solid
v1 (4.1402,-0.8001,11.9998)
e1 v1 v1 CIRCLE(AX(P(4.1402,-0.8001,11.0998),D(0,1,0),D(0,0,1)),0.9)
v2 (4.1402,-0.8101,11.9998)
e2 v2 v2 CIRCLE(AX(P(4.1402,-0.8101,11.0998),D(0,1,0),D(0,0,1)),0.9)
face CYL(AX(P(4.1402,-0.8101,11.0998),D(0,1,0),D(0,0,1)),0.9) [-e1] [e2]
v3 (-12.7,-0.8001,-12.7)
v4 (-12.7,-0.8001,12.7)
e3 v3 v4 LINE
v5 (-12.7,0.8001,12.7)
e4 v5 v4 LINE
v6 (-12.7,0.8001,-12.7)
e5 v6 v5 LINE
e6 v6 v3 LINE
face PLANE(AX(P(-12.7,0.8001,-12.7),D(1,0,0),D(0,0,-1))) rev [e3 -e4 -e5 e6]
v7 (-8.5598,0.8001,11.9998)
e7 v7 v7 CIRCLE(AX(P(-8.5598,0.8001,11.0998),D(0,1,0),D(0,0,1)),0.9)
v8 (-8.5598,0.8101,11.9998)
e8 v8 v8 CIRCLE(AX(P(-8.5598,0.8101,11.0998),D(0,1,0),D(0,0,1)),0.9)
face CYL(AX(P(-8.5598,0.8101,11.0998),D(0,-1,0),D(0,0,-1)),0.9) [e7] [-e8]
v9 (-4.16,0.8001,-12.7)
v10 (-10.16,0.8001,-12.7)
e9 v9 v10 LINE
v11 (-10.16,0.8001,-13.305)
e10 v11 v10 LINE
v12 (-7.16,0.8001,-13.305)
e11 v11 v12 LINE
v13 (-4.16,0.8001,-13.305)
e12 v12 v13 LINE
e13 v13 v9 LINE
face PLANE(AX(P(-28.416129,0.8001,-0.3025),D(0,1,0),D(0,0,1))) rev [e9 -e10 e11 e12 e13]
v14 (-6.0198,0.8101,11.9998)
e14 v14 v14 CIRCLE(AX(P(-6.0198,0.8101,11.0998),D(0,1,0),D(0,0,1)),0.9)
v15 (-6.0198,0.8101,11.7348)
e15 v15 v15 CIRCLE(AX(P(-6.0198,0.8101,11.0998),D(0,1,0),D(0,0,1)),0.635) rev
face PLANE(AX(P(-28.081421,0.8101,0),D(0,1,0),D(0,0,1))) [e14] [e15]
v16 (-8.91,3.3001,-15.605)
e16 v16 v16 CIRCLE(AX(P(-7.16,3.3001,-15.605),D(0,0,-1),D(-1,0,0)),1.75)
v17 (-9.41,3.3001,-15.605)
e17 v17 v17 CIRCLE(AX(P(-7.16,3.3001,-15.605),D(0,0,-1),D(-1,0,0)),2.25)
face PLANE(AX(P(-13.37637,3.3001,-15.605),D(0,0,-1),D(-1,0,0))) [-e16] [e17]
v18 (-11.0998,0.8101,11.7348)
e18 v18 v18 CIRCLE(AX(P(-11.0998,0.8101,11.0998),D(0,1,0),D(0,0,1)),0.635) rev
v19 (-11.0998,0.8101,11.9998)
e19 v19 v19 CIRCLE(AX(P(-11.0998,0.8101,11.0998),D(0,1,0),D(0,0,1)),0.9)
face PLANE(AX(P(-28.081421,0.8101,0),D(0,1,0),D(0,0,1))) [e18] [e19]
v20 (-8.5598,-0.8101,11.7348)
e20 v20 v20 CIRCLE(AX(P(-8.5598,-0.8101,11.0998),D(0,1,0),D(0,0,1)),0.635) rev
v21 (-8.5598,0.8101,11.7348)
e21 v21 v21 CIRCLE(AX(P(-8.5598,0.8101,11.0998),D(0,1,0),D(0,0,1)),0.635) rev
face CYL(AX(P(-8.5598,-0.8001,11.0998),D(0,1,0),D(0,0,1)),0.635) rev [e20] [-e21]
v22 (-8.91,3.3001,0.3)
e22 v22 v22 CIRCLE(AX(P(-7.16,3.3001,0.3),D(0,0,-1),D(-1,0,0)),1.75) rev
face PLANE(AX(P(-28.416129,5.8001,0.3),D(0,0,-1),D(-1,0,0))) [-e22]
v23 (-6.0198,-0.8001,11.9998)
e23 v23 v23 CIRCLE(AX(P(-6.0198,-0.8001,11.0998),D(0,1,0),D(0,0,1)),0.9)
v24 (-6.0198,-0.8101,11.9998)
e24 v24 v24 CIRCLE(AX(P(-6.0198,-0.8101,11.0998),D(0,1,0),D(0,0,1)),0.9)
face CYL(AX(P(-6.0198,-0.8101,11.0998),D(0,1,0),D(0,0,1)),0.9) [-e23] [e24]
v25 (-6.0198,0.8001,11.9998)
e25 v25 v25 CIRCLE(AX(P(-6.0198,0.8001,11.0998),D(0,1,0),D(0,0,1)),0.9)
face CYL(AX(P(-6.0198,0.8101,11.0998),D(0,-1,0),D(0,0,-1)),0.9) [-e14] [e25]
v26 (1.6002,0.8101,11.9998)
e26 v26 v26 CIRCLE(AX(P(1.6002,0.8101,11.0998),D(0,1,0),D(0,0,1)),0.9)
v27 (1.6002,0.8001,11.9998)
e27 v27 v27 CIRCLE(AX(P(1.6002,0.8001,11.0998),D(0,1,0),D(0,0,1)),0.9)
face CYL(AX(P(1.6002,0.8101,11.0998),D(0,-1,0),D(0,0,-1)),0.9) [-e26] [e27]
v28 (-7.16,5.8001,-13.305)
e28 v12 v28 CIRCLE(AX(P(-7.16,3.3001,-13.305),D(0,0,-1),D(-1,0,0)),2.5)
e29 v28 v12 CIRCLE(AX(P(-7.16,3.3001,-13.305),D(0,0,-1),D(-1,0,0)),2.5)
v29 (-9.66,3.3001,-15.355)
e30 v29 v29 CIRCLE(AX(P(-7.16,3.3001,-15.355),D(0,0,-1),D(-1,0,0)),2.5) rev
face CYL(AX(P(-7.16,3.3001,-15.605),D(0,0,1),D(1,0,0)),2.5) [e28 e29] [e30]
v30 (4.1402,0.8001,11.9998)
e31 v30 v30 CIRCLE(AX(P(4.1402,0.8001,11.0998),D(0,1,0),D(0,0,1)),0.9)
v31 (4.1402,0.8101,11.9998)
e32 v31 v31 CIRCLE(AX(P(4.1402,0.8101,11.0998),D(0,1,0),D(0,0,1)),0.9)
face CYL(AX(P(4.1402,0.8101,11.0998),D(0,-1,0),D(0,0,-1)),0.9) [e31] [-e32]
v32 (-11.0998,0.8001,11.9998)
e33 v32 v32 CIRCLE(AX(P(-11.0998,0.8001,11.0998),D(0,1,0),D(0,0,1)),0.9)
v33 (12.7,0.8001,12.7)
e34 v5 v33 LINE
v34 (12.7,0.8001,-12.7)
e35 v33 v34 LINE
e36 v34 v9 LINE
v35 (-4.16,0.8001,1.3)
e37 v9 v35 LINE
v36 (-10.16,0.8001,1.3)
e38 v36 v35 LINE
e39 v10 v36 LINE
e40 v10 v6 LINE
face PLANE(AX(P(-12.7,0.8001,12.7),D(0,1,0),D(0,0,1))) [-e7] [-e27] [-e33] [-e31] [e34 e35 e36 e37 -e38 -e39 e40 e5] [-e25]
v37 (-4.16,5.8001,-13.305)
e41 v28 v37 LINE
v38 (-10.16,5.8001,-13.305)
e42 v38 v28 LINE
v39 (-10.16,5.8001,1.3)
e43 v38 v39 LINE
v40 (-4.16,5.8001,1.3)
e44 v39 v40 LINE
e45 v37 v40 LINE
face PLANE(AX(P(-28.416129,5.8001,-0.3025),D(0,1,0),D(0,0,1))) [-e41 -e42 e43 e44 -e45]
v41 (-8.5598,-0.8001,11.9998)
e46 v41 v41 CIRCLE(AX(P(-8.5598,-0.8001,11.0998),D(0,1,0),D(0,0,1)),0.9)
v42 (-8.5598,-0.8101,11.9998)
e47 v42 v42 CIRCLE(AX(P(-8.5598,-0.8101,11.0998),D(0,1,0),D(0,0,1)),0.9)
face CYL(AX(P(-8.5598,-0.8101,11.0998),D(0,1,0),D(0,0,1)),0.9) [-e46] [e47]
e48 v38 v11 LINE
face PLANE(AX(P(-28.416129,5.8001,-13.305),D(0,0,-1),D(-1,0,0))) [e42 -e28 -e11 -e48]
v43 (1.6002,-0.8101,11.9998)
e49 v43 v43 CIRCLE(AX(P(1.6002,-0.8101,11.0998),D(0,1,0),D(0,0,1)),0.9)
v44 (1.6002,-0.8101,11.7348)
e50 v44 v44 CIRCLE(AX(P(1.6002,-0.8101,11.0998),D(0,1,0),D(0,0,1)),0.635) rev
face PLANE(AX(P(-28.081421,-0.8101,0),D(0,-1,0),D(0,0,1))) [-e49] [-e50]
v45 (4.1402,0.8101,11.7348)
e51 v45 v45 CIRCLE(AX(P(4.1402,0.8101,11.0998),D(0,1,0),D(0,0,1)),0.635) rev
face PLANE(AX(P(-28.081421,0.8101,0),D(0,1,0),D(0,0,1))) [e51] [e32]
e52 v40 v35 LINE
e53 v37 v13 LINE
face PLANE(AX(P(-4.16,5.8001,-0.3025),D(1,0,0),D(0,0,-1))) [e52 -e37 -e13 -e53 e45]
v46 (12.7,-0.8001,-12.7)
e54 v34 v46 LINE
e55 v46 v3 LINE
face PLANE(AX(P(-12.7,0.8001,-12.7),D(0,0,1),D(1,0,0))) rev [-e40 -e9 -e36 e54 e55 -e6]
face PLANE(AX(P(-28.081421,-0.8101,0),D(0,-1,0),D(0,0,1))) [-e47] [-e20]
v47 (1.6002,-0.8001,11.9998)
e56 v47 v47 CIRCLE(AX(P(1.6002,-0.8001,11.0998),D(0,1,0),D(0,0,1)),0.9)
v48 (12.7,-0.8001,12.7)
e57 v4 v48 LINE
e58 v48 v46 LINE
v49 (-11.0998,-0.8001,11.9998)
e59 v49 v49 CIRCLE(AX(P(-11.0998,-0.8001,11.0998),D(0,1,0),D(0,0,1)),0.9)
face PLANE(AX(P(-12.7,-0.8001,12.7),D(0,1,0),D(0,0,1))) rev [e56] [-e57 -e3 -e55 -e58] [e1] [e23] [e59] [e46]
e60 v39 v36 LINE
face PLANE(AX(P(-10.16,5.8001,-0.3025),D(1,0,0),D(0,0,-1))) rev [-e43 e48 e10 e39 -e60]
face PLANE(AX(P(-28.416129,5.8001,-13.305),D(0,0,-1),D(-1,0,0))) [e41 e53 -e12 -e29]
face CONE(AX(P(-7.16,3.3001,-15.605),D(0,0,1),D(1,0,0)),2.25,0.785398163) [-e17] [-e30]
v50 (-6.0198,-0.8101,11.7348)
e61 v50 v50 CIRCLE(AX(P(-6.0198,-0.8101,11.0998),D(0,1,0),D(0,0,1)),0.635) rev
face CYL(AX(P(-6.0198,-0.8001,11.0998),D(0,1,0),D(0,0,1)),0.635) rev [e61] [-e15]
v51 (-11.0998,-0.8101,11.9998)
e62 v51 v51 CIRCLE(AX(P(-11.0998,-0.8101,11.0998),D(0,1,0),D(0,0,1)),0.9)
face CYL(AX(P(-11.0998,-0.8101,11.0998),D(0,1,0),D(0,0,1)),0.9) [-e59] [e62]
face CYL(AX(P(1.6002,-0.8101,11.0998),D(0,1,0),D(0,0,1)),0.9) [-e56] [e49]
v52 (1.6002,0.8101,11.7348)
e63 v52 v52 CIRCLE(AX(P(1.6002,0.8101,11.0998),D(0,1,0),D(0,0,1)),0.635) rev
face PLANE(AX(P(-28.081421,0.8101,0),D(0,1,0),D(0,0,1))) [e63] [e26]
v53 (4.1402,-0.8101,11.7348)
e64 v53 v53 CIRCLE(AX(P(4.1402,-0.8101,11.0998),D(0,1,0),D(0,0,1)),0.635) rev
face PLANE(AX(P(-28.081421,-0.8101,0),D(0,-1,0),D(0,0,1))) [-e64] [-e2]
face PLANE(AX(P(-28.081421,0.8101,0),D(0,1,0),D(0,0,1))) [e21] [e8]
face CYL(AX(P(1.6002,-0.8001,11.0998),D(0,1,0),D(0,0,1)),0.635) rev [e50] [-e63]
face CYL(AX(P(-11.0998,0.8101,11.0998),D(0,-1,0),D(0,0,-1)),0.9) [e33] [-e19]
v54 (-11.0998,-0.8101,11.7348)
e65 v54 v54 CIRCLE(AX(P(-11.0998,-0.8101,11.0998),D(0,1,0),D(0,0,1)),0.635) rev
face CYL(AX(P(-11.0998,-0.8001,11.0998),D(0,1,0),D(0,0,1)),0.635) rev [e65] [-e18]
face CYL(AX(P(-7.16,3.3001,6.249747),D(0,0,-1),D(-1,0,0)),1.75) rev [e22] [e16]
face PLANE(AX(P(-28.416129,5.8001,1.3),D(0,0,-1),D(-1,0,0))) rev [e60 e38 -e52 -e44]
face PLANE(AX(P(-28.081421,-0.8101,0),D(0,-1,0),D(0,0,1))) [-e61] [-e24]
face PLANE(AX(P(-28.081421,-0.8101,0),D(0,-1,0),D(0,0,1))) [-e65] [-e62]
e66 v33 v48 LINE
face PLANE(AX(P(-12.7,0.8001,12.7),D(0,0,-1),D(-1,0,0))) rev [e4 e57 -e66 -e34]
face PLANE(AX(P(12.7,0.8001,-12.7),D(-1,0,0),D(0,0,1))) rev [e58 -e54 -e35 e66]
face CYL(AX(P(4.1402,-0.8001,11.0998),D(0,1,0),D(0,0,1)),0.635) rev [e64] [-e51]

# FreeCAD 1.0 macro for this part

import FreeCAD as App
import Part
import Sketcher
from FreeCAD import Vector


def edges_at(feature, points):
    """Names of the edges that pass closest to the given points."""
    edges = feature.Shape.Edges
    near = lambda p: min(range(len(edges)), key=lambda i: edges[i].distToShape(Part.Vertex(*p))[0])
    return sorted({f"Edge{near(p) + 1}" for p in points})

doc = App.newDocument("Part")
params = doc.addObject("Spreadsheet::Sheet", "Params")
for row, (alias, value) in enumerate([
    ("sketch1_width", "25.4 mm"),
    ("pad1_length", "1.6002 mm"),
    ("sketch2_diameter", "1.27 mm"),
    ("pocket1_length", "1.6002 mm"),
    ("sketch3_width", "6 mm"),
    ("pad2_length", "5 mm"),
    ("sketch4_diameter", "5 mm"),
    ("pad3_length", "2.3 mm"),
    ("sketch5_diameter", "3.5 mm"),
    ("pocket2_length", "15.905 mm"),
    ("chamfer_size", "0.25 mm"),
    ("sketch6_diameter", "1.8 mm"),
    ("sketch6_diameter2", "1.27 mm"),
    ("pad4_length", "0.01 mm"),
], start=1):
    params.set(f"A{row}", alias)
    params.set(f"B{row}", "=" + value)
    params.setAlias(f"B{row}", alias)

body = doc.addObject("PartDesign::Body", "Body")

sketch1 = body.newObject("Sketcher::SketchObject", "Sketch")
sketch1.AttachmentSupport = (doc.getObject("XZ_Plane"), [""])
sketch1.MapMode = "FlatFace"
sketch1.addGeometry([
    Part.LineSegment(Vector(-13, -13, 0), Vector(-13, 13, 0)),
    Part.LineSegment(Vector(-13, 13, 0), Vector(13, 13, 0)),
    Part.LineSegment(Vector(13, 13, 0), Vector(13, -13, 0)),
    Part.LineSegment(Vector(13, -13, 0), Vector(-13, -13, 0)),
], False)
sketch1.addConstraint([
    Sketcher.Constraint("Coincident", 0, 2, 1, 1),
    Sketcher.Constraint("Coincident", 1, 2, 2, 1),
    Sketcher.Constraint("Coincident", 2, 2, 3, 1),
    Sketcher.Constraint("Coincident", 3, 2, 0, 1),
    Sketcher.Constraint("Vertical", 0),
    Sketcher.Constraint("Horizontal", 1),
    Sketcher.Constraint("Vertical", 2),
    Sketcher.Constraint("Horizontal", 3),
    Sketcher.Constraint("Symmetric", 0, 2, 2, 2, -1, 1),
    Sketcher.Constraint("Equal", 3, 0),
    Sketcher.Constraint("DistanceX", 1, 1, 1, 2, 25.4),
])
sketch1.setExpression("Constraints[10]", "Params.sketch1_width")
pad1 = body.newObject("PartDesign::Pad", "Pad")
pad1.Profile = sketch1
pad1.setExpression("Length", "Params.pad1_length")
pad1.Midplane = True

sketch2 = body.newObject("Sketcher::SketchObject", "Sketch001")
sketch2.AttachmentSupport = (doc.getObject("XZ_Plane"), [""])
sketch2.MapMode = "FlatFace"
sketch2.AttachmentOffset = App.Placement(Vector(0, 0, -0.8001), App.Rotation())
sketch2.addGeometry([
    Part.Circle(Vector(-11.1, 11.1, 0), Vector(0, 0, 1), 0.6),
    Part.Circle(Vector(-8.6, 11.1, 0), Vector(0, 0, 1), 0.6),
    Part.Circle(Vector(-6, 11.1, 0), Vector(0, 0, 1), 0.6),
    Part.Circle(Vector(1.6, 11.1, 0), Vector(0, 0, 1), 0.6),
    Part.Circle(Vector(4.1, 11.1, 0), Vector(0, 0, 1), 0.6),
], False)
sketch2.addConstraint([
    Sketcher.Constraint("Equal", 0, 1),
    Sketcher.Constraint("Equal", 1, 2),
    Sketcher.Constraint("Equal", 2, 3),
    Sketcher.Constraint("Equal", 3, 4),
    Sketcher.Constraint("Horizontal", 0, 3, 1, 3),
    Sketcher.Constraint("Horizontal", 1, 3, 2, 3),
    Sketcher.Constraint("Horizontal", 2, 3, 3, 3),
    Sketcher.Constraint("Horizontal", 3, 3, 4, 3),
    Sketcher.Constraint("Diameter", 0, 1.27),
    Sketcher.Constraint("DistanceX", 0, 3, 3, 3, 12.7),
    Sketcher.Constraint("DistanceX", 1, 3, 4, 3, 12.7),
    Sketcher.Constraint("DistanceX", 0, 3, 1, 3, 2.54),
    Sketcher.Constraint("DistanceX", 1, 3, 2, 3, 2.54),
    Sketcher.Constraint("DistanceX", 0, 3, -1, 1, 11.0998),
    Sketcher.Constraint("DistanceY", -1, 1, 0, 3, 11.0998),
])
sketch2.setExpression("Constraints[8]", "Params.sketch2_diameter")
pocket1 = body.newObject("PartDesign::Pocket", "Pocket")
pocket1.Profile = sketch2
pocket1.setExpression("Length", "Params.pocket1_length")
pocket1.Reversed = True

sketch3 = body.newObject("Sketcher::SketchObject", "Sketch002")
sketch3.AttachmentSupport = (doc.getObject("XZ_Plane"), [""])
sketch3.MapMode = "FlatFace"
sketch3.AttachmentOffset = App.Placement(Vector(0, 0, -0.8001), App.Rotation())
sketch3.addGeometry([
    Part.LineSegment(Vector(-10, -13, 0), Vector(-10, 1, 0)),
    Part.LineSegment(Vector(-10, 1, 0), Vector(-4, 1, 0)),
    Part.LineSegment(Vector(-4, 1, 0), Vector(-4, -13, 0)),
    Part.LineSegment(Vector(-4, -13, 0), Vector(-10, -13, 0)),
], False)
sketch3.addConstraint([
    Sketcher.Constraint("Coincident", 0, 2, 1, 1),
    Sketcher.Constraint("Coincident", 1, 2, 2, 1),
    Sketcher.Constraint("Coincident", 2, 2, 3, 1),
    Sketcher.Constraint("Coincident", 3, 2, 0, 1),
    Sketcher.Constraint("Vertical", 0),
    Sketcher.Constraint("Horizontal", 1),
    Sketcher.Constraint("Vertical", 2),
    Sketcher.Constraint("Horizontal", 3),
    Sketcher.Constraint("DistanceX", 1, 1, 1, 2, 6.0),
    Sketcher.Constraint("DistanceY", -1, 1, 0, 2, 1.3),
    Sketcher.Constraint("DistanceY", 0, 1, 0, 2, 14.605),
    Sketcher.Constraint("DistanceX", 0, 2, -1, 1, 10.16),
])
sketch3.setExpression("Constraints[8]", "Params.sketch3_width")
pad2 = body.newObject("PartDesign::Pad", "Pad001")
pad2.Profile = sketch3
pad2.setExpression("Length", "Params.pad2_length")
pad2.Reversed = True

sketch4 = body.newObject("Sketcher::SketchObject", "Sketch003")
sketch4.AttachmentSupport = (doc.getObject("XY_Plane"), [""])
sketch4.MapMode = "FlatFace"
sketch4.AttachmentOffset = App.Placement(Vector(0, 0, -13.305), App.Rotation())
sketch4.addGeometry(Part.Circle(Vector(-7.2, 3.3, 0), Vector(0, 0, 1), 2.5), False)
sketch4.addConstraint([
    Sketcher.Constraint("Diameter", 0, 5.0),
    Sketcher.Constraint("DistanceX", 0, 3, -1, 1, 7.16),
    Sketcher.Constraint("DistanceY", -1, 1, 0, 3, 3.3001),
])
sketch4.setExpression("Constraints[0]", "Params.sketch4_diameter")
pad3 = body.newObject("PartDesign::Pad", "Pad002")
pad3.Profile = sketch4
pad3.setExpression("Length", "Params.pad3_length")
pad3.Reversed = True

sketch5 = body.newObject("Sketcher::SketchObject", "Sketch004")
sketch5.AttachmentSupport = (doc.getObject("XY_Plane"), [""])
sketch5.MapMode = "FlatFace"
sketch5.AttachmentOffset = App.Placement(Vector(0, 0, -15.605), App.Rotation())
sketch5.addGeometry(Part.Circle(Vector(-7.2, 3.3, 0), Vector(0, 0, 1), 1.8), False)
sketch5.addConstraint([
    Sketcher.Constraint("Diameter", 0, 3.5),
    Sketcher.Constraint("DistanceX", 0, 3, -1, 1, 7.16),
    Sketcher.Constraint("DistanceY", -1, 1, 0, 3, 3.3001),
])
sketch5.setExpression("Constraints[0]", "Params.sketch5_diameter")
pocket2 = body.newObject("PartDesign::Pocket", "Pocket001")
pocket2.Profile = sketch5
pocket2.setExpression("Length", "Params.pocket2_length")
pocket2.Reversed = True
doc.recompute()

chamfer = body.newObject("PartDesign::Chamfer", "Chamfer")
chamfer.Base = (pocket2, edges_at(pocket2, [(-4.66, 3.3, -15.605)]))
chamfer.setExpression("Size", "Params.chamfer_size")

sketch6 = body.newObject("Sketcher::SketchObject", "Sketch005")
sketch6.AttachmentSupport = (doc.getObject("XZ_Plane"), [""])
sketch6.MapMode = "FlatFace"
sketch6.AttachmentOffset = App.Placement(Vector(0, 0, -0.8001), App.Rotation())
sketch6.addGeometry([
    Part.Circle(Vector(-11.1, 11.1, 0), Vector(0, 0, 1), 0.9),
    Part.Circle(Vector(-11.1, 11.1, 0), Vector(0, 0, 1), 0.6),
    Part.Circle(Vector(-8.6, 11.1, 0), Vector(0, 0, 1), 0.9),
    Part.Circle(Vector(-8.6, 11.1, 0), Vector(0, 0, 1), 0.6),
    Part.Circle(Vector(-6, 11.1, 0), Vector(0, 0, 1), 0.9),
    Part.Circle(Vector(-6, 11.1, 0), Vector(0, 0, 1), 0.6),
    Part.Circle(Vector(1.6, 11.1, 0), Vector(0, 0, 1), 0.9),
    Part.Circle(Vector(1.6, 11.1, 0), Vector(0, 0, 1), 0.6),
    Part.Circle(Vector(4.1, 11.1, 0), Vector(0, 0, 1), 0.9),
    Part.Circle(Vector(4.1, 11.1, 0), Vector(0, 0, 1), 0.6),
], False)
sketch6.addConstraint([
    Sketcher.Constraint("Coincident", 1, 3, 0, 3),
    Sketcher.Constraint("Coincident", 3, 3, 2, 3),
    Sketcher.Constraint("Coincident", 5, 3, 4, 3),
    Sketcher.Constraint("Coincident", 7, 3, 6, 3),
    Sketcher.Constraint("Coincident", 9, 3, 8, 3),
    Sketcher.Constraint("Equal", 0, 2),
    Sketcher.Constraint("Equal", 1, 3),
    Sketcher.Constraint("Equal", 2, 4),
    Sketcher.Constraint("Equal", 3, 5),
    Sketcher.Constraint("Equal", 4, 6),
    Sketcher.Constraint("Equal", 5, 7),
    Sketcher.Constraint("Equal", 6, 8),
    Sketcher.Constraint("Equal", 7, 9),
    Sketcher.Constraint("Horizontal", 1, 3, 2, 3),
    Sketcher.Constraint("Horizontal", 3, 3, 4, 3),
    Sketcher.Constraint("Horizontal", 5, 3, 6, 3),
    Sketcher.Constraint("Horizontal", 7, 3, 8, 3),
    Sketcher.Constraint("Diameter", 0, 1.8),
    Sketcher.Constraint("Diameter", 1, 1.27),
    Sketcher.Constraint("DistanceX", 0, 3, 6, 3, 12.7),
    Sketcher.Constraint("DistanceX", 2, 3, 8, 3, 12.7),
    Sketcher.Constraint("DistanceX", 0, 3, 2, 3, 2.54),
    Sketcher.Constraint("DistanceX", 2, 3, 4, 3, 2.54),
    Sketcher.Constraint("DistanceX", 0, 3, -1, 1, 11.0998),
    Sketcher.Constraint("DistanceY", -1, 1, 0, 3, 11.0998),
])
sketch6.setExpression("Constraints[17]", "Params.sketch6_diameter")
sketch6.setExpression("Constraints[18]", "Params.sketch6_diameter2")
pad4 = body.newObject("PartDesign::Pad", "Pad003")
pad4.Profile = sketch6
pad4.setExpression("Length", "Params.pad4_length")
pad4.Reversed = True
doc.recompute()

mirrored = body.newObject("PartDesign::Mirrored", "Mirrored")
mirrored.Originals = [pad4]
mirrored.MirrorPlane = (doc.getObject("XZ_Plane"), [""])
body.Tip = mirrored

doc.recompute()
